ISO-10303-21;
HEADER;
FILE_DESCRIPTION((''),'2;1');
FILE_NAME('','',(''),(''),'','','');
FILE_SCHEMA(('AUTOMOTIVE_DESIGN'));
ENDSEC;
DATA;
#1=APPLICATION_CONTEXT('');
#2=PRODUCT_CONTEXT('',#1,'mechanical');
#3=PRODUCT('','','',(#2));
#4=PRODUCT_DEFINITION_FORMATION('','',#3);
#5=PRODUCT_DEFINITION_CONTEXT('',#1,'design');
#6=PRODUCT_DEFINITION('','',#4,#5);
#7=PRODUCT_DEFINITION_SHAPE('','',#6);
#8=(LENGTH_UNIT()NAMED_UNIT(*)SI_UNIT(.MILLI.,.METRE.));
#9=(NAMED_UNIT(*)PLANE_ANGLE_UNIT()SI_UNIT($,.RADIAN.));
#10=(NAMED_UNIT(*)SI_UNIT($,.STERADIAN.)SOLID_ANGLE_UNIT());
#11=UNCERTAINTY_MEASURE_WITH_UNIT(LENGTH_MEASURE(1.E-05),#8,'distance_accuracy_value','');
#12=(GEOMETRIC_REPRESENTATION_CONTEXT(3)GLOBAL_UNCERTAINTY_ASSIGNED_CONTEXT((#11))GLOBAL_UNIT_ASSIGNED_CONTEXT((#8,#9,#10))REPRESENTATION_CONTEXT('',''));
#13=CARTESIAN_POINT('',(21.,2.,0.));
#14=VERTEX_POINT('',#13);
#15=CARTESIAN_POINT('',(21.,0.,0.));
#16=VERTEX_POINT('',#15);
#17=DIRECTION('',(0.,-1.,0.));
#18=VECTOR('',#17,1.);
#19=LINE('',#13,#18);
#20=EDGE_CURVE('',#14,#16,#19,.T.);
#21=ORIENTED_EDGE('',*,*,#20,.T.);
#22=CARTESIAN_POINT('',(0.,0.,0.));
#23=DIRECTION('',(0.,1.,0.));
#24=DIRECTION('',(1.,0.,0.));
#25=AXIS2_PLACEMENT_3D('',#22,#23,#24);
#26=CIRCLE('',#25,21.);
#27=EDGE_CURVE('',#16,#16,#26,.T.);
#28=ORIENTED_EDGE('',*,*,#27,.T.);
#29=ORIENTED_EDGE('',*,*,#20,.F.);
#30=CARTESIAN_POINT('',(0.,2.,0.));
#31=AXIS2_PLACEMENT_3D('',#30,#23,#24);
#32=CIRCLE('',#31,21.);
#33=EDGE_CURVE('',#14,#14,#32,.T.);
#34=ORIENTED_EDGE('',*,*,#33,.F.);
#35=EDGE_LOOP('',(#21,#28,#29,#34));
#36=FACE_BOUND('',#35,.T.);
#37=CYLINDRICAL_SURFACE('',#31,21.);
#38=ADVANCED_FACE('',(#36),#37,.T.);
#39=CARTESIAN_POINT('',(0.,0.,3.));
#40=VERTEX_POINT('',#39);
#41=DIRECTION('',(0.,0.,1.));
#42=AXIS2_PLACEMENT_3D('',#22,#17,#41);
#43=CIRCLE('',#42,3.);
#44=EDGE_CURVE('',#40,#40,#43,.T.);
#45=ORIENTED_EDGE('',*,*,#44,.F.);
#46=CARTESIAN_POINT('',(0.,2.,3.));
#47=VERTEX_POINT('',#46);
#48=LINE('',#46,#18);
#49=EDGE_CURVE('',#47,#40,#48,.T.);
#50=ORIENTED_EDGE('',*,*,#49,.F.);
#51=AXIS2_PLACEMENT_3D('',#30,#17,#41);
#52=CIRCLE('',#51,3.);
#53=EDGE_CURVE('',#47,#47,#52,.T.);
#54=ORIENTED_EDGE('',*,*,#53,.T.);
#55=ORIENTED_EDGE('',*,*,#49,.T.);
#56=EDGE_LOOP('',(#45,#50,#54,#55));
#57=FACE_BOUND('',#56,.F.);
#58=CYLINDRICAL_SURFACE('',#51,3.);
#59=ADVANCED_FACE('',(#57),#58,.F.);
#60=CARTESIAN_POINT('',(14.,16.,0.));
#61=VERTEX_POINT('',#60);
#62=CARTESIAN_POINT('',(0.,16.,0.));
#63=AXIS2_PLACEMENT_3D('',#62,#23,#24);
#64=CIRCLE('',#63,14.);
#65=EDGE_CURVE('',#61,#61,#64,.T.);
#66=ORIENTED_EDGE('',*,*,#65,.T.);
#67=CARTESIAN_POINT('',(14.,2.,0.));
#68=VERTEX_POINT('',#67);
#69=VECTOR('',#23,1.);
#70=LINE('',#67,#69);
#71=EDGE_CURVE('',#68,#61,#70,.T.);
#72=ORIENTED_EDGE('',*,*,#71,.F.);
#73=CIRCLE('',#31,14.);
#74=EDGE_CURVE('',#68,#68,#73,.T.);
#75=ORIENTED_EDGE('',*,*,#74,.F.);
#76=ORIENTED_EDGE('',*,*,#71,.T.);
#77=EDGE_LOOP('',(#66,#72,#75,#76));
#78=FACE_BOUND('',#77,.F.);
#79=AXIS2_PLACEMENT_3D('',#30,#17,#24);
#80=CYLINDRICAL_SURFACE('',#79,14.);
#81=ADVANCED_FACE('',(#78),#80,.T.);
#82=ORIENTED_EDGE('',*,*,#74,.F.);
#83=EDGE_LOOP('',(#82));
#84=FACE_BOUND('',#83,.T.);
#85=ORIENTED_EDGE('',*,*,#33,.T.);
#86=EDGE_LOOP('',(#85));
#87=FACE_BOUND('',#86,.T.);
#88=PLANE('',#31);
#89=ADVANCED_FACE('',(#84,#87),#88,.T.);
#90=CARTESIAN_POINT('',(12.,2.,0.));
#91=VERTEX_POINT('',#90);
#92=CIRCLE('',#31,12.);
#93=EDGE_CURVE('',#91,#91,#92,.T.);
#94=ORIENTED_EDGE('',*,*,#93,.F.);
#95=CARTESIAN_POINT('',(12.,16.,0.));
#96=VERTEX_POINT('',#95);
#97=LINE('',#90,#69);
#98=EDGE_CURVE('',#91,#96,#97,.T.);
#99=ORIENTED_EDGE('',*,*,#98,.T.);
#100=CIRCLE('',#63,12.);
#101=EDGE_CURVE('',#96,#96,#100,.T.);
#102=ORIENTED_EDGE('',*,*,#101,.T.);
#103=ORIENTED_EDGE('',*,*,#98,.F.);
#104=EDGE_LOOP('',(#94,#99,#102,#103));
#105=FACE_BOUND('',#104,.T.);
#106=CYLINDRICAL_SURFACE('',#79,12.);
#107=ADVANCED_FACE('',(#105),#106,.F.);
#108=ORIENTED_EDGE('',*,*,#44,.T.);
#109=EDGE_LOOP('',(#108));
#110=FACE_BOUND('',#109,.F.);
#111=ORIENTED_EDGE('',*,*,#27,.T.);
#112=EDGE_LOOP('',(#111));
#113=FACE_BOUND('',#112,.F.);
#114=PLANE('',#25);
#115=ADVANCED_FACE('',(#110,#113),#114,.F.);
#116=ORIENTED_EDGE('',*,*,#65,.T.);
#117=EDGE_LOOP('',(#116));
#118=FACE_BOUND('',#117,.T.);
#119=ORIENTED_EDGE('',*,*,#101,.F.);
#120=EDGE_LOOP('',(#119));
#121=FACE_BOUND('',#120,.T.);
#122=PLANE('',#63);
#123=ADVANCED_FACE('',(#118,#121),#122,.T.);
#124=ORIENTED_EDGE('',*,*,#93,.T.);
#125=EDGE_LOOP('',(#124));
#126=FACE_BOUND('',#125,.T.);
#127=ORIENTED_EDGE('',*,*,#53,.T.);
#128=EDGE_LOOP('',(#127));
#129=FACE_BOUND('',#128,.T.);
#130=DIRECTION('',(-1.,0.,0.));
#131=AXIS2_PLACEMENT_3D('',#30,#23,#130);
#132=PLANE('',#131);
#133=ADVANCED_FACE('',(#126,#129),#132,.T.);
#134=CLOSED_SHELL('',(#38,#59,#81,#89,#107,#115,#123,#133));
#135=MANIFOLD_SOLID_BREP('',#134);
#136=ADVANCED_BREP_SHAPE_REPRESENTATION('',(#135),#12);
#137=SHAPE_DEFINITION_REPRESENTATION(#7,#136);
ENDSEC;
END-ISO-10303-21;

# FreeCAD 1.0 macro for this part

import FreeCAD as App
import Part
import Sketcher

V = App.Vector
Q = App.Units.Quantity

doc = App.newDocument("Part")
body = doc.addObject("PartDesign::Body", "Body")

sketch1 = body.newObject("Sketcher::SketchObject", "Sketch")
sketch1.AttachmentSupport = (doc.getObject("XZ_Plane"), [""])
sketch1.MapMode = "FlatFace"
sketch1.addGeometry(Part.Circle(V(0, 0, 0), V(0, 0, 1), 18), False)
sketch1.addConstraint([
    Sketcher.Constraint("Coincident", 0, 3, -1, 1),
    Sketcher.Constraint("Diameter", 0, Q("36 mm")),
])
pad1 = body.newObject("PartDesign::Pad", "Pad")
pad1.Profile = sketch1
pad1.Length = 2
pad1.Reversed = True

sketch2 = body.newObject("Sketcher::SketchObject", "Sketch001")
sketch2.AttachmentSupport = (doc.getObject("XZ_Plane"), [""])
sketch2.MapMode = "FlatFace"
sketch2.AttachmentOffset = App.Placement(V(0, 0, -2), App.Rotation())
sketch2.addGeometry([
    Part.Circle(V(0, 0, 0), V(0, 0, 1), 14),
    Part.Circle(V(0, 0, 0), V(0, 0, 1), 12),
], False)
sketch2.addConstraint([
    Sketcher.Constraint("Coincident", 0, 3, -1, 1),
    Sketcher.Constraint("Coincident", 1, 3, -1, 1),
    Sketcher.Constraint("Diameter", 0, Q("28 mm")),
    Sketcher.Constraint("Diameter", 1, Q("24 mm")),
])
pad2 = body.newObject("PartDesign::Pad", "Pad001")
pad2.Profile = sketch2
pad2.Length = 14
pad2.Reversed = True

sketch3 = body.newObject("Sketcher::SketchObject", "Sketch002")
sketch3.AttachmentSupport = (doc.getObject("XZ_Plane"), [""])
sketch3.MapMode = "FlatFace"
sketch3.AttachmentOffset = App.Placement(V(0, 0, -2), App.Rotation())
sketch3.addGeometry(Part.Circle(V(0, 0, 0), V(0, 0, 1), 3), False)
sketch3.addConstraint([
    Sketcher.Constraint("Coincident", 0, 3, -1, 1),
    Sketcher.Constraint("Diameter", 0, Q("6 mm")),
])
doc.recompute()
hole = body.newObject("PartDesign::Hole", "Hole")
hole.Profile = sketch3
hole.ThreadType = "None"
hole.Diameter = 6
hole.DepthType = "ThroughAll"
hole.Reversed = True

sketch4 = body.newObject("Sketcher::SketchObject", "Sketch003")
sketch4.AttachmentSupport = (doc.getObject("XZ_Plane"), [""])
sketch4.MapMode = "FlatFace"
sketch4.AttachmentOffset = App.Placement(V(0, 0, -2), App.Rotation())
sketch4.addGeometry(Part.Circle(V(0, 0, 0), V(0, 0, 1), 21), False)
sketch4.addConstraint([
    Sketcher.Constraint("Coincident", 0, 3, -1, 1),
    Sketcher.Constraint("Diameter", 0, Q("42 mm")),
])
pad3 = body.newObject("PartDesign::Pad", "Pad002")
pad3.Profile = sketch4
pad3.Length = 2

sketch5 = body.newObject("Sketcher::SketchObject", "Sketch004")
sketch5.AttachmentSupport = (doc.getObject("XZ_Plane"), [""])
sketch5.MapMode = "FlatFace"
sketch5.AttachmentOffset = App.Placement(V(0, 0, -2), App.Rotation())
sketch5.addGeometry(Part.Circle(V(0, 0, 0), V(0, 0, 1), 3), False)
sketch5.addConstraint([
    Sketcher.Constraint("Coincident", 0, 3, -1, 1),
    Sketcher.Constraint("Diameter", 0, Q("6 mm")),
])
doc.recompute()
hole2 = body.newObject("PartDesign::Hole", "Hole001")
hole2.Profile = sketch5
hole2.ThreadType = "None"
hole2.Diameter = 6
hole2.DepthType = "ThroughAll"
hole2.Reversed = True

doc.recompute()
